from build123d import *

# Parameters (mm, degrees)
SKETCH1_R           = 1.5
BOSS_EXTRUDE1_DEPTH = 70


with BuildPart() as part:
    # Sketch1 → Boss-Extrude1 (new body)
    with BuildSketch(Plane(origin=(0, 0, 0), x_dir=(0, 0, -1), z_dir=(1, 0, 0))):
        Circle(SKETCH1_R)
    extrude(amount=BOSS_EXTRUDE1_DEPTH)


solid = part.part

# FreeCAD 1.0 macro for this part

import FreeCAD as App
import Part
import Sketcher

V = App.Vector
Q = App.Units.Quantity

doc = App.newDocument("Part")
params = doc.addObject("Spreadsheet::Sheet", "Params")
for row, (alias, value) in enumerate([
    ("sketch1_diameter", "3 mm"),
    ("pad1_length", "70 mm"),
], start=1):
    params.set(f"A{row}", alias)
    params.set(f"B{row}", "=" + value)
    params.setAlias(f"B{row}", alias)

body = doc.addObject("PartDesign::Body", "Body")

# Sketch on YZ plane
sketch1 = body.newObject("Sketcher::SketchObject", "Sketch")
sketch1.AttachmentSupport = (doc.getObject("YZ_Plane"), [""])
sketch1.MapMode = "FlatFace"
sketch1.addGeometry(Part.Circle(V(0, 0, 0), V(0, 0, 1), 1.5), False)
sketch1.addConstraint([
    Sketcher.Constraint("Coincident", 0, 3, -1, 1),
    Sketcher.Constraint("Diameter", 0, Q("3 mm")),
])
sketch1.setExpression("Constraints[1]", "Params.sketch1_diameter")
pad1 = body.newObject("PartDesign::Pad", "Pad")
pad1.Profile = sketch1
pad1.setExpression("Length", "Params.pad1_length")

doc.recompute()
